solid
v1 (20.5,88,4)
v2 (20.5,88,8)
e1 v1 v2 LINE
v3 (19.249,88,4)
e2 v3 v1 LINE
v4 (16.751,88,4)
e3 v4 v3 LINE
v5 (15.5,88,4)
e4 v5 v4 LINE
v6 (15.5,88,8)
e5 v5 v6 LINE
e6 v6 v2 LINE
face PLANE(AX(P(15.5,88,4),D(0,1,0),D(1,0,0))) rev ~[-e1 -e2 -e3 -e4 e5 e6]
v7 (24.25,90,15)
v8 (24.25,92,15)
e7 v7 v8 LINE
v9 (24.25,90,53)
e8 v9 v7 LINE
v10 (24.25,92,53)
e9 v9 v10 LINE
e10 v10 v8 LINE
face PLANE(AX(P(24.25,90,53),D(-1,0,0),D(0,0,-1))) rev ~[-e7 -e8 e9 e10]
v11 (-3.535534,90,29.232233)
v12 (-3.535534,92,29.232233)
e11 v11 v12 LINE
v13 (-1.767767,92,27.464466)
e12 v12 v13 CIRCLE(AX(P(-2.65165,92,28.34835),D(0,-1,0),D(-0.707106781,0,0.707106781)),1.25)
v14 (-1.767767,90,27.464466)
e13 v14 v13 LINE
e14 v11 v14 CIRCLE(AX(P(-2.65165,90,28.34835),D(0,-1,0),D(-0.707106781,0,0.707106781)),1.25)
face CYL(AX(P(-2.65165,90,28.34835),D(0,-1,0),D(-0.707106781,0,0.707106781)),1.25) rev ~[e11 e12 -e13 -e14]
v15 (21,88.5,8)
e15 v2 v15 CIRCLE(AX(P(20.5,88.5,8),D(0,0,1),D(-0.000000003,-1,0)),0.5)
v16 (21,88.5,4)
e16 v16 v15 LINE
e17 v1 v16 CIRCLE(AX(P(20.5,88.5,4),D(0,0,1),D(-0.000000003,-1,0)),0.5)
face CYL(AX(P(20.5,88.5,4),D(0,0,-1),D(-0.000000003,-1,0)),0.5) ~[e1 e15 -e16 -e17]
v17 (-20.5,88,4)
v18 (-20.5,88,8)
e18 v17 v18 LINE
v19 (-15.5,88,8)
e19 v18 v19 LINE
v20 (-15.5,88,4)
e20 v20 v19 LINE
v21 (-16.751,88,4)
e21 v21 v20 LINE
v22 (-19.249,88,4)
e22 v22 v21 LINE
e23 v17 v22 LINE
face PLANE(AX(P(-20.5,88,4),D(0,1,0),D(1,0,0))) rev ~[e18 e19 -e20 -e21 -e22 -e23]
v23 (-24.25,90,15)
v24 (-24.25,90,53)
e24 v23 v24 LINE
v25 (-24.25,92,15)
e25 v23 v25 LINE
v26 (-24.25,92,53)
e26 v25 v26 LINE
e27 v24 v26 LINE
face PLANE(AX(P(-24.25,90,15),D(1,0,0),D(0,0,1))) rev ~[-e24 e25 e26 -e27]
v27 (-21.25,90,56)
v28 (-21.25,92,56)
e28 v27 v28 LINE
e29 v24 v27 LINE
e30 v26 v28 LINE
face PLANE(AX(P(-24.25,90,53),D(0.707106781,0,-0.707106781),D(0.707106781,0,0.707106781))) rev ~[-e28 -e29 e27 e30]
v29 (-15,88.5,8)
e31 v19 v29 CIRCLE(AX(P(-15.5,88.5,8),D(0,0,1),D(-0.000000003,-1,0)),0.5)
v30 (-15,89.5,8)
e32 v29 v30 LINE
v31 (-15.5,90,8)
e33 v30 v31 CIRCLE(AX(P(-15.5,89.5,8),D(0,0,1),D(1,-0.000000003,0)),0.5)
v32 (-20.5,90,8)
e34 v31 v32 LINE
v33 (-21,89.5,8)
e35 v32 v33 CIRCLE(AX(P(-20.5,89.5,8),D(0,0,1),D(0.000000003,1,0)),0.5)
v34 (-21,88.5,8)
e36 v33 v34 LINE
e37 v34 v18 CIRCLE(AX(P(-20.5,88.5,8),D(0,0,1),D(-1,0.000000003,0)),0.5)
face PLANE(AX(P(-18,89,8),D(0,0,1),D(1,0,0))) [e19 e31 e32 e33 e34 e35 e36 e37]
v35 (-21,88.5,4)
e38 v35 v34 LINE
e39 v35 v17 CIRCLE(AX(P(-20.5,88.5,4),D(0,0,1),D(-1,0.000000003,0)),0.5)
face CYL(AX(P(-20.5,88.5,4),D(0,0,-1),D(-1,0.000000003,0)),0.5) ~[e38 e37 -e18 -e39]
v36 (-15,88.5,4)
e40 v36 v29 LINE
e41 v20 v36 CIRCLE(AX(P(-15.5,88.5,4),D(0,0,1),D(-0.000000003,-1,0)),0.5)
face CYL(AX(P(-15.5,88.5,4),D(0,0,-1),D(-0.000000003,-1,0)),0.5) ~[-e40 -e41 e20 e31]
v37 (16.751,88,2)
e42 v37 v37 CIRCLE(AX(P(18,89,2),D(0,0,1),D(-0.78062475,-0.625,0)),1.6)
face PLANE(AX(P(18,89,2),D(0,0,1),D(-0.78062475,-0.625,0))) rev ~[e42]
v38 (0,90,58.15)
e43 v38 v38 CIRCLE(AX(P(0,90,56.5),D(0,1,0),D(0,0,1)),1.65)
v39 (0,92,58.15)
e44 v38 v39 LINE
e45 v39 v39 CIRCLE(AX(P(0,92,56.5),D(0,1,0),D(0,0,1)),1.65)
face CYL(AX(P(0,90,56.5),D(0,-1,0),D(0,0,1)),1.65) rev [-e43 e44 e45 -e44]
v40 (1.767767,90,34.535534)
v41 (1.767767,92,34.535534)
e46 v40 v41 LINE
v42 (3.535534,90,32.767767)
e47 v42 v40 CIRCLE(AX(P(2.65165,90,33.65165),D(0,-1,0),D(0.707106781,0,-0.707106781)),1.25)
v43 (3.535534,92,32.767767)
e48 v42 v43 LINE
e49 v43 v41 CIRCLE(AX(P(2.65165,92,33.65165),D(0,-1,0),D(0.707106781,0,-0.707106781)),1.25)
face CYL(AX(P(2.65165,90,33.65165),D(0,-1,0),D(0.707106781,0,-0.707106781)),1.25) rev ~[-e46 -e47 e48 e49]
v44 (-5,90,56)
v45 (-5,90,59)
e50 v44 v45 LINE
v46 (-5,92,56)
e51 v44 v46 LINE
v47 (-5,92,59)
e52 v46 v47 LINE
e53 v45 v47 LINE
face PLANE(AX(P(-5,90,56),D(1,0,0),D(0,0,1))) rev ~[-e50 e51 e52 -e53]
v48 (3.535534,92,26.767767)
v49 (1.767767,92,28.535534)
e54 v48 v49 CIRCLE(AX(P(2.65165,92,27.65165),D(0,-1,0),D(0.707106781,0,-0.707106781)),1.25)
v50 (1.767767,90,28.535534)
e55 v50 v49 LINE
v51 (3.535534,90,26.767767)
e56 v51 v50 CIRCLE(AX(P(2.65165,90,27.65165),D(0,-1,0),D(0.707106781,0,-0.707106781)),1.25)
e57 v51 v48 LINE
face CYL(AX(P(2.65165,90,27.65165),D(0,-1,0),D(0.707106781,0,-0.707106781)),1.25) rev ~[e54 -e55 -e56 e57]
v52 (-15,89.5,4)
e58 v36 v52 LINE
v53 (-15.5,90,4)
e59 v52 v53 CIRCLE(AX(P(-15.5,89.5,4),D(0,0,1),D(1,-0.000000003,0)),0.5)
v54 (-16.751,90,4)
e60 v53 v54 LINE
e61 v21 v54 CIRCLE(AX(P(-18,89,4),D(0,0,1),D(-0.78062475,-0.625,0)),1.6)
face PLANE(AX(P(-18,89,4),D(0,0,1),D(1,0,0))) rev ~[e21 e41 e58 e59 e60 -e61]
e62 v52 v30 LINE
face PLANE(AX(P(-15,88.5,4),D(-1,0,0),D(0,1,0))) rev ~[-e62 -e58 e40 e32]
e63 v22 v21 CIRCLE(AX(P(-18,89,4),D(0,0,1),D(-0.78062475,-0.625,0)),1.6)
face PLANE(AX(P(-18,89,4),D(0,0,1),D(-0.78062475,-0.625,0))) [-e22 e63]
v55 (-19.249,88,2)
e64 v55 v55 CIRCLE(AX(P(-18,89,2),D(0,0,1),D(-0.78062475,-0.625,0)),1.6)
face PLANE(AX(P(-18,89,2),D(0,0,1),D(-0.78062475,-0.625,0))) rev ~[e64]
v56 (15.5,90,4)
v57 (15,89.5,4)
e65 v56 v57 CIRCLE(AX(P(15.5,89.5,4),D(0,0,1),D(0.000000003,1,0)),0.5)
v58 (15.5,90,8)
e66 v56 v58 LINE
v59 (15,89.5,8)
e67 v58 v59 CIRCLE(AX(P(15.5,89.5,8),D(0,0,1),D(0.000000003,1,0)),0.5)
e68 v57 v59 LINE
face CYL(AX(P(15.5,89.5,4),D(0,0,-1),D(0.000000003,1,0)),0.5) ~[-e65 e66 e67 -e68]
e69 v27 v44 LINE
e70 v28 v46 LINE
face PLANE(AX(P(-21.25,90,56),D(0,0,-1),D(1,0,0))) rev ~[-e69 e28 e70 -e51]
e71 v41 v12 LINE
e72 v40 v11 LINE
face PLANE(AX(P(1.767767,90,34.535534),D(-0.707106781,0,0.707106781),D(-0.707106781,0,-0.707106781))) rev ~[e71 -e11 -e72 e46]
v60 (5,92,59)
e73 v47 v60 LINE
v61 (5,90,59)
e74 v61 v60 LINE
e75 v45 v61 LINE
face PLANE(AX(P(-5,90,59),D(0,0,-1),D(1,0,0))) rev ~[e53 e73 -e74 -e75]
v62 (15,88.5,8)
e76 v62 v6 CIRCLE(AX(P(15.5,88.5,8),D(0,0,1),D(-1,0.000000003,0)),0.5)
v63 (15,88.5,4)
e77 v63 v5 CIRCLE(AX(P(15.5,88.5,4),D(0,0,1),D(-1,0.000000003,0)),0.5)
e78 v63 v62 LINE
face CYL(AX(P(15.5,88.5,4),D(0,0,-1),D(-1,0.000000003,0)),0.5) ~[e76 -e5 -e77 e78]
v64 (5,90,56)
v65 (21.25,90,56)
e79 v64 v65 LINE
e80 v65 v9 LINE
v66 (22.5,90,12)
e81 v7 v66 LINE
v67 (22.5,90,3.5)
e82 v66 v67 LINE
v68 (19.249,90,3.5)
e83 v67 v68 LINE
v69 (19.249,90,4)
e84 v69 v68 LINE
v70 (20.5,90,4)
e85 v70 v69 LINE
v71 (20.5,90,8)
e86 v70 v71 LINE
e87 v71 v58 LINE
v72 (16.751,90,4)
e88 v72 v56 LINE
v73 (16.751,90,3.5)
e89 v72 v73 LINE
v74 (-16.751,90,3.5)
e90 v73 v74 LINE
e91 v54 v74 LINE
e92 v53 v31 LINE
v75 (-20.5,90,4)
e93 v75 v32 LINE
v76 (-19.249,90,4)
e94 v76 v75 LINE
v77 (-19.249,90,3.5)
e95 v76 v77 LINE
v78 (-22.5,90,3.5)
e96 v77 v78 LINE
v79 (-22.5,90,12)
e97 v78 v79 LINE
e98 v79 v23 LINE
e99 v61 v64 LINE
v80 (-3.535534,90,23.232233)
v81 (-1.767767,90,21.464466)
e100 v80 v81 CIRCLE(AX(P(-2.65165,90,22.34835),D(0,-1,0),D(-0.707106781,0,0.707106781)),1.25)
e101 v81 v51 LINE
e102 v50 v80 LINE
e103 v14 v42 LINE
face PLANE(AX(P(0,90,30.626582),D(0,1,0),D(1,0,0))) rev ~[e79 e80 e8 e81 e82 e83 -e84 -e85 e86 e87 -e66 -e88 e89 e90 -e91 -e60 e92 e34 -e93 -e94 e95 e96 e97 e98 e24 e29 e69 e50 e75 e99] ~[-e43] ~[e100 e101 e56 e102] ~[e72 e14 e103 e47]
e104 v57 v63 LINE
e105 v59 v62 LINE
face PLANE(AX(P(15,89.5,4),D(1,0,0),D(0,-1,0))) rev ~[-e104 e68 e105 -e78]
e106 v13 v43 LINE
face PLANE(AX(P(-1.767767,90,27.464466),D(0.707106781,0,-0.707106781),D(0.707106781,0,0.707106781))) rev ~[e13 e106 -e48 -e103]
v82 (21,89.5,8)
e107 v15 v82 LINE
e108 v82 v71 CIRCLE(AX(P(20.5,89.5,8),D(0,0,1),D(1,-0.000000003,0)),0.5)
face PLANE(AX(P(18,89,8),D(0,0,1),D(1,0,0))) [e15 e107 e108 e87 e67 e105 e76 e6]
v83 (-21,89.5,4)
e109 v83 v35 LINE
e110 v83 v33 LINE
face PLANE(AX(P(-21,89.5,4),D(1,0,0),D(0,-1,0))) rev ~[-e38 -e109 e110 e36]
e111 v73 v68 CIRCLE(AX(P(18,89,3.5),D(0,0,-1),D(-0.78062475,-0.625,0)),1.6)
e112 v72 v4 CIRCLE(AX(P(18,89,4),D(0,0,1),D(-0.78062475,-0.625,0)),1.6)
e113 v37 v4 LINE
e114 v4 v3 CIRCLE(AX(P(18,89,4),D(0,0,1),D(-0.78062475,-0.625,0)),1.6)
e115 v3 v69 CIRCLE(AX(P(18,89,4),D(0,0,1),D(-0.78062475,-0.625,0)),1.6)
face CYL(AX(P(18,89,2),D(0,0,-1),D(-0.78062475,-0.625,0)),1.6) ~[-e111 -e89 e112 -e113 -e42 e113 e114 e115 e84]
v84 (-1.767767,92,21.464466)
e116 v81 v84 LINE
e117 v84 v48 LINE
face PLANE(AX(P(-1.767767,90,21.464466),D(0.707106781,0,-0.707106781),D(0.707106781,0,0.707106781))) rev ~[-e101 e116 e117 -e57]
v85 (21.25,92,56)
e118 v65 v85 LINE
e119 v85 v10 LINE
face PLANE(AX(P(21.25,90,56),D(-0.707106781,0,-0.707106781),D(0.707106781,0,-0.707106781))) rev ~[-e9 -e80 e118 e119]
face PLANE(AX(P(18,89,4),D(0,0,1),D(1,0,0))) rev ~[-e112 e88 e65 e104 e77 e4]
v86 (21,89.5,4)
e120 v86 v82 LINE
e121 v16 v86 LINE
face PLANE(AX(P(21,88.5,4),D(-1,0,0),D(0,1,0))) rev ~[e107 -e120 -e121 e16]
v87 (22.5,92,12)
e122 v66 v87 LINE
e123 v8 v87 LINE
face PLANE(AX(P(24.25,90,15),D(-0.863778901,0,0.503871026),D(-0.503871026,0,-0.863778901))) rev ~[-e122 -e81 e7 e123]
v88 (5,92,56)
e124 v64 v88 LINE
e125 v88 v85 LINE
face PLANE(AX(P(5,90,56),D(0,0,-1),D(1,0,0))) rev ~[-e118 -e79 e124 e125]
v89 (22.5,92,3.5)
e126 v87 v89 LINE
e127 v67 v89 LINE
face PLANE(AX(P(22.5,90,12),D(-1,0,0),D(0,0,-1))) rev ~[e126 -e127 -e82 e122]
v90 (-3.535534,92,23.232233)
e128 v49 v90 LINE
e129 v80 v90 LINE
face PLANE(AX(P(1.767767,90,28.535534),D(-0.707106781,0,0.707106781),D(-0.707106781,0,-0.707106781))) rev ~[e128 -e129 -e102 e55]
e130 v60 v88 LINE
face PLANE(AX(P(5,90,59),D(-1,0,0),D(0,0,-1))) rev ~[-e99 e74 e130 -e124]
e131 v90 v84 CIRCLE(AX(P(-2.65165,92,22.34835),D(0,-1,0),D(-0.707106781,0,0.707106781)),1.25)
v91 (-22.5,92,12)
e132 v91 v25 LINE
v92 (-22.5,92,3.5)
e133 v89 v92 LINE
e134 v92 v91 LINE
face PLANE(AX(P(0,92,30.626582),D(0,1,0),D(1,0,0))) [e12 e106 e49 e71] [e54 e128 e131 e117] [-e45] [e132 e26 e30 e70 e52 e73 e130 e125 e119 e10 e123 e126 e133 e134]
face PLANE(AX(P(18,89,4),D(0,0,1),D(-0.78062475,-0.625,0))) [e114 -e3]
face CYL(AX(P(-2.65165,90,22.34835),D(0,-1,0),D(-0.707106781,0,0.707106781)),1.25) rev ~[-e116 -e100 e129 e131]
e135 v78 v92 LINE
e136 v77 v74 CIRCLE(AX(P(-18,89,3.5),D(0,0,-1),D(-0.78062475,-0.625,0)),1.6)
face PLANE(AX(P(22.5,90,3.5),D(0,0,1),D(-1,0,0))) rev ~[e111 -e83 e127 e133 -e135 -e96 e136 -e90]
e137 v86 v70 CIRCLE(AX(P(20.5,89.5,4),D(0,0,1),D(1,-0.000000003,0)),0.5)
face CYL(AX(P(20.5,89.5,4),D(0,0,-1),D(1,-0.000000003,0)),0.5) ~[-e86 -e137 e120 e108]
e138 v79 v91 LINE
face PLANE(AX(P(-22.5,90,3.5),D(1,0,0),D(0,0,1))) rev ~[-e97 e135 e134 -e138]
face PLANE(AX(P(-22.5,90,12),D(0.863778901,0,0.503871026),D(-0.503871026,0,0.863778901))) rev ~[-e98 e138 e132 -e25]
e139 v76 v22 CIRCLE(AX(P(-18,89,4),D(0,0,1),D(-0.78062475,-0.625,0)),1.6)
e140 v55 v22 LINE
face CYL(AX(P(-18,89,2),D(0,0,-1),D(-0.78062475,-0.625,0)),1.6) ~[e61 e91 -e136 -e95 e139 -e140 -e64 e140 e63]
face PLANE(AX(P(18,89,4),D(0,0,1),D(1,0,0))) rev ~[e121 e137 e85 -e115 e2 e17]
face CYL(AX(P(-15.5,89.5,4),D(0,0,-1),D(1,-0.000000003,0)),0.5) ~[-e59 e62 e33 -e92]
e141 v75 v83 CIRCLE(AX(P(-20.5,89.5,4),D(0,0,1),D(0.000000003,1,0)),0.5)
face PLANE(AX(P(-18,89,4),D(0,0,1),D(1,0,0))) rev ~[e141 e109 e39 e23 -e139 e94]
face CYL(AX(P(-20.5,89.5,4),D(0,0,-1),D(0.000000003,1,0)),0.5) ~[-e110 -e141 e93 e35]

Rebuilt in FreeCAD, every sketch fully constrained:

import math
import FreeCAD as App
import Part
import Sketcher
from FreeCAD import Vector
Q = App.Units.Quantity

doc = App.newDocument("Part")
body = doc.addObject("PartDesign::Body", "Body")

# Sketch on XZ plane
sketch1 = body.newObject("Sketcher::SketchObject", "Sketch")
sketch1.AttachmentSupport = (doc.getObject("XZ_Plane"), [""])
sketch1.MapMode = "FlatFace"
sketch1.AttachmentOffset = App.Placement(Vector(0, 0, -90), App.Rotation())
sketch1.addGeometry([
    Part.LineSegment(Vector(-22.5, 3.5, 0), Vector(-22.5, 12, 0)),  # 0
    Part.LineSegment(Vector(-22.5, 12, 0), Vector(-24.25, 15, 0)),  # 1
    Part.LineSegment(Vector(-24.25, 15, 0), Vector(-24.25, 53, 0)),  # 2
    Part.LineSegment(Vector(-24.25, 53, 0), Vector(-21.25, 56, 0)),  # 3
    Part.LineSegment(Vector(-21.25, 56, 0), Vector(-5, 56, 0)),  # 4
    Part.LineSegment(Vector(-5, 56, 0), Vector(-5, 59, 0)),  # 5
    Part.LineSegment(Vector(-5, 59, 0), Vector(5, 59, 0)),  # 6
    Part.LineSegment(Vector(5, 59, 0), Vector(5, 56, 0)),  # 7
    Part.LineSegment(Vector(5, 56, 0), Vector(21.25, 56, 0)),  # 8
    Part.LineSegment(Vector(21.25, 56, 0), Vector(24.25, 53, 0)),  # 9
    Part.LineSegment(Vector(24.25, 53, 0), Vector(24.25, 15, 0)),  # 10
    Part.LineSegment(Vector(24.25, 15, 0), Vector(22.5, 12, 0)),  # 11
    Part.LineSegment(Vector(22.5, 12, 0), Vector(22.5, 3.5, 0)),  # 12
    Part.LineSegment(Vector(22.5, 3.5, 0), Vector(-22.5, 3.5, 0)),  # 13
    Part.Circle(Vector(0, 56.5, 0), Vector(0, 0, 1), 1.65),  # 14
], False)
sketch1.addConstraint([
    Sketcher.Constraint("Coincident", 0, 2, 1, 1),
    Sketcher.Constraint("Coincident", 1, 2, 2, 1),
    Sketcher.Constraint("Coincident", 2, 2, 3, 1),
    Sketcher.Constraint("Coincident", 3, 2, 4, 1),
    Sketcher.Constraint("Coincident", 4, 2, 5, 1),
    Sketcher.Constraint("Coincident", 5, 2, 6, 1),
    Sketcher.Constraint("Coincident", 6, 2, 7, 1),
    Sketcher.Constraint("Coincident", 7, 2, 8, 1),
    Sketcher.Constraint("Coincident", 8, 2, 9, 1),
    Sketcher.Constraint("Coincident", 9, 2, 10, 1),
    Sketcher.Constraint("Coincident", 10, 2, 11, 1),
    Sketcher.Constraint("Coincident", 11, 2, 12, 1),
    Sketcher.Constraint("Coincident", 12, 2, 13, 1),
    Sketcher.Constraint("Coincident", 13, 2, 0, 1),
    Sketcher.Constraint("Vertical", 0),
    Sketcher.Constraint("Vertical", 2),
    Sketcher.Constraint("Horizontal", 4),
    Sketcher.Constraint("Vertical", 5),
    Sketcher.Constraint("Horizontal", 6),
    Sketcher.Constraint("Vertical", 7),
    Sketcher.Constraint("Horizontal", 8),
    Sketcher.Constraint("Vertical", 10),
    Sketcher.Constraint("Vertical", 12),
    Sketcher.Constraint("Horizontal", 13),
    Sketcher.Constraint("Symmetric", 4, 2, 7, 2, -2),
    Sketcher.Constraint("Symmetric", 2, 2, 9, 2, -2),
    Sketcher.Constraint("Symmetric", 0, 2, 11, 2, -2),
    Sketcher.Constraint("PointOnObject", 14, 3, -2),
    Sketcher.Constraint("Perpendicular", 3, 9),
    Sketcher.Constraint("Horizontal", 1, 2, 10, 2),
    Sketcher.Constraint("Equal", 4, 8),
    Sketcher.Constraint("Diameter", 14, 3.3),
    Sketcher.Constraint("DistanceX", 6, 1, 6, 2, 10.0),
    Sketcher.Constraint("DistanceX", 13, 2, 13, 1, 45.0),
    Sketcher.Constraint("DistanceY", 2, 1, 2, 2, 38.0),
    Sketcher.Constraint("DistanceY", 5, 1, 5, 2, 3.0),
    Sketcher.Constraint("DistanceY", 0, 1, 0, 2, 8.5),
    Sketcher.Constraint("DistanceY", -1, 1, 0, 2, 12.0),
    Sketcher.Constraint("DistanceY", -1, 1, 1, 2, 15.0),
    Sketcher.Constraint("DistanceY", -1, 1, 3, 2, 56.0),
    Sketcher.Constraint("DistanceX", 4, 1, 4, 2, 16.25),
    Sketcher.Constraint("DistanceY", -1, 1, 14, 3, 56.5),
])
pad1 = body.newObject("PartDesign::Pad", "Pad")
pad1.Profile = sketch1
pad1.Length = 2
pad1.Reversed = True

# Sketch on XY plane
sketch2 = body.newObject("Sketcher::SketchObject", "Sketch001")
sketch2.AttachmentSupport = (doc.getObject("XY_Plane"), [""])
sketch2.MapMode = "FlatFace"
sketch2.AttachmentOffset = App.Placement(Vector(0, 0, 4), App.Rotation())
sketch2.addGeometry([
    Part.LineSegment(Vector(-20.5, 88, 0), Vector(-15.5, 88, 0)),  # 0
    Part.ArcOfCircle(Part.Circle(Vector(-15.5, 88.5, 0), Vector(0, 0, 1), 0.5), math.radians(-90), math.radians(0)),  # 1
    Part.LineSegment(Vector(-15, 88.5, 0), Vector(-15, 89.5, 0)),  # 2
    Part.ArcOfCircle(Part.Circle(Vector(-15.5, 89.5, 0), Vector(0, 0, 1), 0.5), math.radians(0), math.radians(90)),  # 3
    Part.LineSegment(Vector(-15.5, 90, 0), Vector(-20.5, 90, 0)),  # 4
    Part.ArcOfCircle(Part.Circle(Vector(-20.5, 89.5, 0), Vector(0, 0, 1), 0.5), math.radians(90), math.radians(180)),  # 5
    Part.LineSegment(Vector(-21, 89.5, 0), Vector(-21, 88.5, 0)),  # 6
    Part.ArcOfCircle(Part.Circle(Vector(-20.5, 88.5, 0), Vector(0, 0, 1), 0.5), math.radians(180), math.radians(270)),  # 7
], False)
sketch2.addConstraint([
    Sketcher.Constraint("Tangent", 0, 2, 1, 1),
    Sketcher.Constraint("Tangent", 1, 2, 2, 1),
    Sketcher.Constraint("Tangent", 2, 2, 3, 1),
    Sketcher.Constraint("Tangent", 3, 2, 4, 1),
    Sketcher.Constraint("Tangent", 4, 2, 5, 1),
    Sketcher.Constraint("Tangent", 5, 2, 6, 1),
    Sketcher.Constraint("Tangent", 6, 2, 7, 1),
    Sketcher.Constraint("Tangent", 7, 2, 0, 1),
    Sketcher.Constraint("Horizontal", 0),
    Sketcher.Constraint("Vertical", 2),
    Sketcher.Constraint("Horizontal", 4),
    Sketcher.Constraint("Vertical", 6),
    Sketcher.Constraint("Equal", 1, 3),
    Sketcher.Constraint("Equal", 3, 5),
    Sketcher.Constraint("Equal", 5, 7),
    Sketcher.Constraint("Radius", 1, 0.5),
    Sketcher.Constraint("DistanceX", 0, 1, 0, 2, 5.0),
    Sketcher.Constraint("DistanceY", 2, 1, 2, 2, 1.0),
    Sketcher.Constraint("DistanceY", -1, 1, 0, 2, 88.0),
    Sketcher.Constraint("DistanceX", 1, 2, -1, 1, 15.0),
])
pad2 = body.newObject("PartDesign::Pad", "Pad001")
pad2.Profile = sketch2
pad2.Length = 4

# Sketch on XY plane
sketch3 = body.newObject("Sketcher::SketchObject", "Sketch002")
sketch3.AttachmentSupport = (doc.getObject("XY_Plane"), [""])
sketch3.MapMode = "FlatFace"
sketch3.AttachmentOffset = App.Placement(Vector(0, 0, 2), App.Rotation())
sketch3.addGeometry(Part.Circle(Vector(-18, 89, 0), Vector(0, 0, 1), 1.6), False)
sketch3.addConstraint([
    Sketcher.Constraint("Diameter", 0, 3.2),
    Sketcher.Constraint("DistanceX", 0, 3, -1, 1, 18.0),
    Sketcher.Constraint("DistanceY", -1, 1, 0, 3, 89.0),
])
pad3 = body.newObject("PartDesign::Pad", "Pad002")
pad3.Profile = sketch3
pad3.Length = 2

# Sketch on XY plane
sketch4 = body.newObject("Sketcher::SketchObject", "Sketch003")
sketch4.AttachmentSupport = (doc.getObject("XY_Plane"), [""])
sketch4.MapMode = "FlatFace"
sketch4.AttachmentOffset = App.Placement(Vector(0, 0, 4), App.Rotation())
sketch4.addGeometry([
    Part.LineSegment(Vector(15.5, 88, 0), Vector(20.5, 88, 0)),  # 0
    Part.ArcOfCircle(Part.Circle(Vector(20.5, 88.5, 0), Vector(0, 0, 1), 0.5), math.radians(-90), math.radians(0)),  # 1
    Part.LineSegment(Vector(21, 88.5, 0), Vector(21, 89.5, 0)),  # 2
    Part.ArcOfCircle(Part.Circle(Vector(20.5, 89.5, 0), Vector(0, 0, 1), 0.5), math.radians(0), math.radians(90)),  # 3
    Part.LineSegment(Vector(20.5, 90, 0), Vector(15.5, 90, 0)),  # 4
    Part.ArcOfCircle(Part.Circle(Vector(15.5, 89.5, 0), Vector(0, 0, 1), 0.5), math.radians(90), math.radians(180)),  # 5
    Part.LineSegment(Vector(15, 89.5, 0), Vector(15, 88.5, 0)),  # 6
    Part.ArcOfCircle(Part.Circle(Vector(15.5, 88.5, 0), Vector(0, 0, 1), 0.5), math.radians(180), math.radians(270)),  # 7
], False)
sketch4.addConstraint([
    Sketcher.Constraint("Tangent", 0, 2, 1, 1),
    Sketcher.Constraint("Tangent", 1, 2, 2, 1),
    Sketcher.Constraint("Tangent", 2, 2, 3, 1),
    Sketcher.Constraint("Tangent", 3, 2, 4, 1),
    Sketcher.Constraint("Tangent", 4, 2, 5, 1),
    Sketcher.Constraint("Tangent", 5, 2, 6, 1),
    Sketcher.Constraint("Tangent", 6, 2, 7, 1),
    Sketcher.Constraint("Tangent", 7, 2, 0, 1),
    Sketcher.Constraint("Horizontal", 0),
    Sketcher.Constraint("Vertical", 2),
    Sketcher.Constraint("Horizontal", 4),
    Sketcher.Constraint("Vertical", 6),
    Sketcher.Constraint("Equal", 1, 3),
    Sketcher.Constraint("Equal", 3, 5),
    Sketcher.Constraint("Equal", 5, 7),
    Sketcher.Constraint("Radius", 1, 0.5),
    Sketcher.Constraint("DistanceX", 0, 1, 0, 2, 5.0),
    Sketcher.Constraint("DistanceY", 2, 1, 2, 2, 1.0),
    Sketcher.Constraint("DistanceY", -1, 1, 0, 2, 88.0),
    Sketcher.Constraint("DistanceX", -1, 1, 1, 2, 21.0),
])
pad4 = body.newObject("PartDesign::Pad", "Pad003")
pad4.Profile = sketch4
pad4.Length = 4

# Sketch on XY plane
sketch5 = body.newObject("Sketcher::SketchObject", "Sketch004")
sketch5.AttachmentSupport = (doc.getObject("XY_Plane"), [""])
sketch5.MapMode = "FlatFace"
sketch5.AttachmentOffset = App.Placement(Vector(0, 0, 2), App.Rotation())
sketch5.addGeometry(Part.Circle(Vector(18, 89, 0), Vector(0, 0, 1), 1.6), False)
sketch5.addConstraint([
    Sketcher.Constraint("Diameter", 0, 3.2),
    Sketcher.Constraint("DistanceX", -1, 1, 0, 3, 18.0),
    Sketcher.Constraint("DistanceY", -1, 1, 0, 3, 89.0),
])
pad5 = body.newObject("PartDesign::Pad", "Pad004")
pad5.Profile = sketch5
pad5.Length = 2

# Sketch on XZ plane
sketch6 = body.newObject("Sketcher::SketchObject", "Sketch005")
sketch6.AttachmentSupport = (doc.getObject("XZ_Plane"), [""])
sketch6.MapMode = "FlatFace"
sketch6.AttachmentOffset = App.Placement(Vector(0, 0, -90), App.Rotation())
sketch6.addGeometry([
    Part.LineSegment(Vector(3.535534, 26.767767, 0), Vector(-1.767767, 21.464466, 0)),  # 0
    Part.ArcOfCircle(Part.Circle(Vector(-2.65165, 22.34835, 0), Vector(0, 0, 1), 1.25), math.radians(135), math.radians(315)),  # 1
    Part.LineSegment(Vector(-3.535534, 23.232233, 0), Vector(1.767767, 28.535534, 0)),  # 2
    Part.ArcOfCircle(Part.Circle(Vector(2.65165, 27.65165, 0), Vector(0, 0, 1), 1.25), math.radians(-45), math.radians(135)),  # 3
    Part.LineSegment(Vector(3.535534, 32.767767, 0), Vector(-1.767767, 27.464466, 0)),  # 4
    Part.ArcOfCircle(Part.Circle(Vector(-2.65165, 28.34835, 0), Vector(0, 0, 1), 1.25), math.radians(135), math.radians(315)),  # 5
    Part.LineSegment(Vector(-3.535534, 29.232233, 0), Vector(1.767767, 34.535534, 0)),  # 6
    Part.ArcOfCircle(Part.Circle(Vector(2.65165, 33.65165, 0), Vector(0, 0, 1), 1.25), math.radians(-45), math.radians(135)),  # 7
], False)
sketch6.addConstraint([
    Sketcher.Constraint("Tangent", 0, 2, 1, 2),
    Sketcher.Constraint("Tangent", 1, 1, 2, 1),
    Sketcher.Constraint("Tangent", 2, 2, 3, 2),
    Sketcher.Constraint("Tangent", 3, 1, 0, 1),
    Sketcher.Constraint("Tangent", 4, 2, 5, 2),
    Sketcher.Constraint("Tangent", 5, 1, 6, 1),
    Sketcher.Constraint("Tangent", 6, 2, 7, 2),
    Sketcher.Constraint("Tangent", 7, 1, 4, 1),
    Sketcher.Constraint("Equal", 1, 3),
    Sketcher.Constraint("Equal", 3, 5),
    Sketcher.Constraint("Equal", 5, 7),
    Sketcher.Constraint("Parallel", 2, 4),
    Sketcher.Constraint("Vertical", 1, 3, 5, 3),
    Sketcher.Constraint("Vertical", 3, 3, 7, 3),
    Sketcher.Constraint("Angle", 0, Q("-135 deg")),
    Sketcher.Constraint("Radius", 1, 1.25),
    Sketcher.Constraint("DistanceY", 1, 3, 5, 3, 6.0),
    Sketcher.Constraint("Distance", 0, 7.5),
    Sketcher.Constraint("DistanceX", 1, 3, -1, 1, 2.65165),
    Sketcher.Constraint("DistanceY", -1, 1, 1, 3, 22.34835),
])
pocket1 = body.newObject("PartDesign::Pocket", "Pocket")
pocket1.Profile = sketch6
pocket1.Length = 2

doc.recompute()
